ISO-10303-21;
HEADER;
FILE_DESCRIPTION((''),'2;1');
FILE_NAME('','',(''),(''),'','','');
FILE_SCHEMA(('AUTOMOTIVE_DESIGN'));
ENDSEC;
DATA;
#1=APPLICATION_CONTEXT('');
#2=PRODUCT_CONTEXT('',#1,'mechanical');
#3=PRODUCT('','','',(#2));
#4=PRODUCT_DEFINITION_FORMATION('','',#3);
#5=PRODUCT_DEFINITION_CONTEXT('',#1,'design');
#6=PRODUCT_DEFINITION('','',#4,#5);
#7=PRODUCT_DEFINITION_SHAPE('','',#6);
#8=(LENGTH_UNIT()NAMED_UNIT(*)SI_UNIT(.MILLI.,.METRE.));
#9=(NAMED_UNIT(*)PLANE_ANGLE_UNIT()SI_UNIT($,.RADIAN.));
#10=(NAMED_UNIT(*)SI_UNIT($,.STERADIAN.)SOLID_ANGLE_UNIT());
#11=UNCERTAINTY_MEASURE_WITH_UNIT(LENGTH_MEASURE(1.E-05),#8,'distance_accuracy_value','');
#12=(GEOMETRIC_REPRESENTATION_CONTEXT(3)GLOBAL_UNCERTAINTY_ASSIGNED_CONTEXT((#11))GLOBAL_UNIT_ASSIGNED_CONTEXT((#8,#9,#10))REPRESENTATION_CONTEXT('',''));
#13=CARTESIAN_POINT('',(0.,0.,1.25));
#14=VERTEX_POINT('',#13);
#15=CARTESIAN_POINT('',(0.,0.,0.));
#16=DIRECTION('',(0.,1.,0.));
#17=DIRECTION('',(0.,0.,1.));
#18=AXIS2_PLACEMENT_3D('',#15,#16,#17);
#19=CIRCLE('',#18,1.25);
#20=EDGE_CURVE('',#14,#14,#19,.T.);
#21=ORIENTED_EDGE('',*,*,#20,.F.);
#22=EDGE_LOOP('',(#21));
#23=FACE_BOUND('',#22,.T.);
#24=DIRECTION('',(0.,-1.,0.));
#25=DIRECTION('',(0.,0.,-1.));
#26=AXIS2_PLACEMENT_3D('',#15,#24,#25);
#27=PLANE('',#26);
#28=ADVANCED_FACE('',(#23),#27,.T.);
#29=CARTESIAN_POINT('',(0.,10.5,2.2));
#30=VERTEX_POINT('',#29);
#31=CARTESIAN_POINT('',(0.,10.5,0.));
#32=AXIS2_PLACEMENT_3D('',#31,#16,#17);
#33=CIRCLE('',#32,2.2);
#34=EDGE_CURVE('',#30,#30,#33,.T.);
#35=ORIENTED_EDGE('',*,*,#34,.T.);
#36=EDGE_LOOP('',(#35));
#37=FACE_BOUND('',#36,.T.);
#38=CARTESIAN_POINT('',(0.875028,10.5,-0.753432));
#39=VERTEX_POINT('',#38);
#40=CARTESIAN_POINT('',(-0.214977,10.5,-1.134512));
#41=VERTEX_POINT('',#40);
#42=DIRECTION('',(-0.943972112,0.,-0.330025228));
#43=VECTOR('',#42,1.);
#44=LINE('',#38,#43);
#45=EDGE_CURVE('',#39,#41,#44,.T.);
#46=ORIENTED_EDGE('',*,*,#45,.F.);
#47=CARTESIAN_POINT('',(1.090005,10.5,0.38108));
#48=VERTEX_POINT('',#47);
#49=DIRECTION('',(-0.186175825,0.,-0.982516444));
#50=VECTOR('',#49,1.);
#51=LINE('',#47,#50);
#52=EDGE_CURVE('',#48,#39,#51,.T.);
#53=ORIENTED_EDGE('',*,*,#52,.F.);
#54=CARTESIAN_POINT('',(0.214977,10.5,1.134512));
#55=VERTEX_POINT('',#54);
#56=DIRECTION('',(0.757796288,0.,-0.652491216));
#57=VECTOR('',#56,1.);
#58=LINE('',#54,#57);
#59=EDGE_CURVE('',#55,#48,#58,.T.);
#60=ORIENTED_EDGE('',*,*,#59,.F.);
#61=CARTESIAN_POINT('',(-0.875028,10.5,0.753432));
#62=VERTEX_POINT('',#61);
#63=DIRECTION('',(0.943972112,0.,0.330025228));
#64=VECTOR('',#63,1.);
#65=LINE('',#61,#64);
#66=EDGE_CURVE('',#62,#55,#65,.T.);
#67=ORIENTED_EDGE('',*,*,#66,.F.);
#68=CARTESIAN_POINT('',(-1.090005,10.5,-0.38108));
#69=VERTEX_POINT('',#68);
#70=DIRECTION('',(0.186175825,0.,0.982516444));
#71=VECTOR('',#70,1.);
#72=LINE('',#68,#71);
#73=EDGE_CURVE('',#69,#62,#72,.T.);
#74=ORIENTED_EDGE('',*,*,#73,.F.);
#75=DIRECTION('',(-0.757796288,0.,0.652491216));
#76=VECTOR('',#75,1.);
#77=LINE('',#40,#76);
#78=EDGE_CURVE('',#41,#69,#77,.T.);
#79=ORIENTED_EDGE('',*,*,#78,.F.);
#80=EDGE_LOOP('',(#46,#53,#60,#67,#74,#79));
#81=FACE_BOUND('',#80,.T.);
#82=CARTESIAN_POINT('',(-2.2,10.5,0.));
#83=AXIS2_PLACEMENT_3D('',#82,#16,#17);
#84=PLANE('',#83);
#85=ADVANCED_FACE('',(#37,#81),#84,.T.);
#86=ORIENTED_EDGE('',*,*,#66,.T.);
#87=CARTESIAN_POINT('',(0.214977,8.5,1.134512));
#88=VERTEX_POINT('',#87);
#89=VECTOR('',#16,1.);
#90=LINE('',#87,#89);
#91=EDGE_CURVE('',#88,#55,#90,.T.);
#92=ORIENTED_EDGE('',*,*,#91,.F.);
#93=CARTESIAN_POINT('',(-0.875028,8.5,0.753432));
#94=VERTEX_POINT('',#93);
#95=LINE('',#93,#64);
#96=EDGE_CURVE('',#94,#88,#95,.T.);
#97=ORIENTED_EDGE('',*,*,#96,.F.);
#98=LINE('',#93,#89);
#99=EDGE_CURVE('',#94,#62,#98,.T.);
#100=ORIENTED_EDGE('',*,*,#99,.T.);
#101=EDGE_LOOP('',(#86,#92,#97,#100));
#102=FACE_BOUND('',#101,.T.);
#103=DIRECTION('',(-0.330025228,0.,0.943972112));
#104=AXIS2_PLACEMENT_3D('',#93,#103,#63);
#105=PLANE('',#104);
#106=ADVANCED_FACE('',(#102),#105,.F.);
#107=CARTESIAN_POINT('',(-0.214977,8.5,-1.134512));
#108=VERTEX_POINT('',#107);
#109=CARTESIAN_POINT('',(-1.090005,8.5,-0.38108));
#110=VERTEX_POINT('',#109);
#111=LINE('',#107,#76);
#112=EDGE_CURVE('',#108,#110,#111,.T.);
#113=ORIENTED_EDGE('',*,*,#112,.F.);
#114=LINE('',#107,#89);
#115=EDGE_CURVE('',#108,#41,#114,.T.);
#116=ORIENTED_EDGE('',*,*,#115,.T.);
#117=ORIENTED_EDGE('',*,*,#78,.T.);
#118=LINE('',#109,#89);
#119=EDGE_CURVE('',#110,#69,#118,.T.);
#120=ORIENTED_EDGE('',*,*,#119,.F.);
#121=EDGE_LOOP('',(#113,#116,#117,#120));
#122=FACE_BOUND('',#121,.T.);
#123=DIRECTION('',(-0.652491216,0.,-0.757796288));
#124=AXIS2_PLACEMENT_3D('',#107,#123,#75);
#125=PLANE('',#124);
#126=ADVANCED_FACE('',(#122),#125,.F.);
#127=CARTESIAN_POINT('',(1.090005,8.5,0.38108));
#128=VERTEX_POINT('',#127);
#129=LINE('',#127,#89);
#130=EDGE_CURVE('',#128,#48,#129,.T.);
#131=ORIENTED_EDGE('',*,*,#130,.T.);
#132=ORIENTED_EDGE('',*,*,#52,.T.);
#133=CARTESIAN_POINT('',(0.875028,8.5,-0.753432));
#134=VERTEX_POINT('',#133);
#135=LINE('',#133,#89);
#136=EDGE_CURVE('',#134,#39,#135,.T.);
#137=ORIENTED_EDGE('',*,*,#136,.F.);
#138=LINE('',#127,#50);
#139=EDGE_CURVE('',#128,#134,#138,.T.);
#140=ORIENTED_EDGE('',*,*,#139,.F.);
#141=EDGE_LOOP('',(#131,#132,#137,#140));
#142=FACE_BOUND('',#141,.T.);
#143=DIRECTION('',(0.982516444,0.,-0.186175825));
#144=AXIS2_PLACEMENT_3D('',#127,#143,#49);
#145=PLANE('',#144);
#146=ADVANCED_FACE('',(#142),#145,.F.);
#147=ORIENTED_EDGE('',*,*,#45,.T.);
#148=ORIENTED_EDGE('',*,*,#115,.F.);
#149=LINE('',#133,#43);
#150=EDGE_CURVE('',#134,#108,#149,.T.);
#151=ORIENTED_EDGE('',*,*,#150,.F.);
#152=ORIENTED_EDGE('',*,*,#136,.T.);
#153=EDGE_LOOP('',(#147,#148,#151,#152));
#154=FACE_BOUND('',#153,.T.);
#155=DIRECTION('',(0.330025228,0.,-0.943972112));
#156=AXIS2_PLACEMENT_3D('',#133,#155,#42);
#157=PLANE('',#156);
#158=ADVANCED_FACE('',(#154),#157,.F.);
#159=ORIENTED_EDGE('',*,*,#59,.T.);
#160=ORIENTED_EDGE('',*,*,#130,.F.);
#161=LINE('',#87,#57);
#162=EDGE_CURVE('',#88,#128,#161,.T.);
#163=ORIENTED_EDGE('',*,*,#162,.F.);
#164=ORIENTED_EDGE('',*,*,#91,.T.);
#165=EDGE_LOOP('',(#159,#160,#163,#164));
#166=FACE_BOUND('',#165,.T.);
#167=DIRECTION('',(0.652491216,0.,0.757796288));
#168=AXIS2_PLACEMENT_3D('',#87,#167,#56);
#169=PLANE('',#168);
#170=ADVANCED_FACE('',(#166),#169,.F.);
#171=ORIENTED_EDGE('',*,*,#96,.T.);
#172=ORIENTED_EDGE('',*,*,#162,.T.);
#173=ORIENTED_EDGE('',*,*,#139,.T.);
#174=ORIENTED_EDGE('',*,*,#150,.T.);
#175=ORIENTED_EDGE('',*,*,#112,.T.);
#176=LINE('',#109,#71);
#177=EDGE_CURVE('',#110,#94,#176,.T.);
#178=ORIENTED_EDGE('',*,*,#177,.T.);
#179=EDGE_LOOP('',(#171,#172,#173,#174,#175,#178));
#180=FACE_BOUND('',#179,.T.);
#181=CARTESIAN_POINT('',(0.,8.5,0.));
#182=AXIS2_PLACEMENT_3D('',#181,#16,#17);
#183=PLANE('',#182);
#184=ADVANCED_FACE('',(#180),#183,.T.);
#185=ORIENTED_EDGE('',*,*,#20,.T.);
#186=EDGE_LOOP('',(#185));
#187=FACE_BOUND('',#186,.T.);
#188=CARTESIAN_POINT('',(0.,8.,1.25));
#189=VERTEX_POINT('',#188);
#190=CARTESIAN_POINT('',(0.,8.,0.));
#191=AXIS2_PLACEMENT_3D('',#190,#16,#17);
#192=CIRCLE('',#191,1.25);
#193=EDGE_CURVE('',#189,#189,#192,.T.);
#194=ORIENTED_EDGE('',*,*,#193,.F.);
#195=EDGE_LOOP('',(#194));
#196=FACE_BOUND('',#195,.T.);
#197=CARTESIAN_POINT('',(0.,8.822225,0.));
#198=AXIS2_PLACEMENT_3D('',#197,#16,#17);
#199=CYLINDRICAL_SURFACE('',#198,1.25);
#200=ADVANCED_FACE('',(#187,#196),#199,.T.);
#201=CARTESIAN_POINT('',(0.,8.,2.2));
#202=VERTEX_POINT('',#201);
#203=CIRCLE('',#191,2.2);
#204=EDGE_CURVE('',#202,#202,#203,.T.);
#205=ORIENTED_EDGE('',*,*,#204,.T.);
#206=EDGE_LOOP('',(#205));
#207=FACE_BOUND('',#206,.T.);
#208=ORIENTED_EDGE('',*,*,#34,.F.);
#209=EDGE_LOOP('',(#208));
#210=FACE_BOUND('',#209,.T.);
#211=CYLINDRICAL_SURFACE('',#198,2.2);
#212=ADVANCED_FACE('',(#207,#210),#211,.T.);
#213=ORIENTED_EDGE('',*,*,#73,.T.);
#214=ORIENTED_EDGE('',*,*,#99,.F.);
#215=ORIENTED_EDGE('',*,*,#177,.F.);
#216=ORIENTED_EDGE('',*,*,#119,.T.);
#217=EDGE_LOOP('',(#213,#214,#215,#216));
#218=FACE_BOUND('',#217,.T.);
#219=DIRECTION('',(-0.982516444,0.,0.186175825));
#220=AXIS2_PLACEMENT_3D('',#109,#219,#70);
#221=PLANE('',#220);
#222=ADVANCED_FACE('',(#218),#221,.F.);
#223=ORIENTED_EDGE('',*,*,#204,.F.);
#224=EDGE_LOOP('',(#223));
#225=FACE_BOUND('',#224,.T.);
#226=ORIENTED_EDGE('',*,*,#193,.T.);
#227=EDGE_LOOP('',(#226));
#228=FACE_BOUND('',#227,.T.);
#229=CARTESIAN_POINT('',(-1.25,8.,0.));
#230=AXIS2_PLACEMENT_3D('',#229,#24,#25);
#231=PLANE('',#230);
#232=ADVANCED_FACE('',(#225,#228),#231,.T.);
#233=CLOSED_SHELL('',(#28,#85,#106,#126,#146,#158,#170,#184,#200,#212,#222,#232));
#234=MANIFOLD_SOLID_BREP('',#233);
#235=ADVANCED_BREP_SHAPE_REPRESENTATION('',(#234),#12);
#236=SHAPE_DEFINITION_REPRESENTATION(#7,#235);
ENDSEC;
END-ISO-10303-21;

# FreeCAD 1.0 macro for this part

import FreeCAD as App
import Part
import Sketcher
Q = App.Units.Quantity


def add_polygon(sketch, points):
    """Adds a closed chain of lines whose ends are joined by coincident constraints."""
    first, n = sketch.GeometryCount, len(points)
    for a, b in zip(points, points[1:] + points[:1]):
        sketch.addGeometry(Part.LineSegment(App.Vector(*a, 0), App.Vector(*b, 0)), False)
    for i in range(n):
        sketch.addConstraint(Sketcher.Constraint("Coincident", first + i, 2, first + (i + 1) % n, 1))

doc = App.newDocument("Part")
body = doc.addObject("PartDesign::Body", "Body")

# Sketch on XY plane
sketch1 = body.newObject("Sketcher::SketchObject", "Sketch")
sketch1.AttachmentSupport = (doc.getObject("XY_Plane"), [""])
sketch1.MapMode = "FlatFace"
add_polygon(sketch1, [(-1.2, 0), (0, 0), (0, 8.8), (-0.8, 8.8), (-0.8, 10.5), (-2.2, 10.5), (-2.2, 8), (-1.2, 8)])  # lines 0-7
sketch1.addConstraint([
    Sketcher.Constraint("Horizontal", 0),
    Sketcher.Constraint("Vertical", 1),
    Sketcher.Constraint("Horizontal", 2),
    Sketcher.Constraint("Vertical", 3),
    Sketcher.Constraint("Horizontal", 4),
    Sketcher.Constraint("Vertical", 5),
    Sketcher.Constraint("Horizontal", 6),
    Sketcher.Constraint("Vertical", 7),
    Sketcher.Constraint("Coincident", 0, 2, -1, 1),
    Sketcher.Constraint("DistanceY", 7, 2, 7, 1, Q("8 mm")),
    Sketcher.Constraint("DistanceY", 5, 2, 5, 1, Q("2.5 mm")),
    Sketcher.Constraint("DistanceX", 0, 1, 0, 2, Q("1.25 mm")),
    Sketcher.Constraint("DistanceX", 6, 1, 6, 2, Q("0.95 mm")),
    Sketcher.Constraint("DistanceX", 2, 2, 2, 1, Q("0.840647 mm")),
    Sketcher.Constraint("DistanceY", 1, 1, 1, 2, Q("8.822225 mm")),
])
revolution = body.newObject("PartDesign::Revolution", "Revolution")
revolution.Profile = sketch1
revolution.ReferenceAxis = (sketch1, ["V_Axis"])
revolution.Angle = 360

# Sketch on XZ plane
sketch2 = body.newObject("Sketcher::SketchObject", "Sketch001")
sketch2.AttachmentSupport = (doc.getObject("XZ_Plane"), [""])
sketch2.MapMode = "FlatFace"
sketch2.AttachmentOffset = App.Placement(App.Vector(0, 0, -10.5), App.Rotation())
add_polygon(sketch2, [(0.9, -0.8), (-0.2, -1.1), (-1.1, -0.4), (-0.9, 0.8), (0.2, 1.1), (1.1, 0.4)])  # lines 0-5
sketch2.addConstraint([
    Sketcher.Constraint("Symmetric", 0, 2, 3, 2, -1, 1),
    Sketcher.Constraint("Symmetric", 1, 2, 4, 2, -1, 1),
    Sketcher.Constraint("Symmetric", 2, 2, 5, 2, -1, 1),
    Sketcher.Constraint("Equal", 0, 1),
    Sketcher.Constraint("Equal", 1, 2),
    Sketcher.Constraint("Distance", 0, Q("1.154701 mm")),
    Sketcher.Constraint("DistanceY", 1, 2, -1, 1, Q("0.38108 mm")),
    Sketcher.Constraint("DistanceY", -1, 1, 2, 2, Q("0.753432 mm")),
    Sketcher.Constraint("DistanceY", 0, 2, 1, 2, Q("0.753432 mm")),
])
pocket1 = body.newObject("PartDesign::Pocket", "Pocket")
pocket1.Profile = sketch2
pocket1.Length = 2
pocket1.Reversed = True

doc.recompute()
